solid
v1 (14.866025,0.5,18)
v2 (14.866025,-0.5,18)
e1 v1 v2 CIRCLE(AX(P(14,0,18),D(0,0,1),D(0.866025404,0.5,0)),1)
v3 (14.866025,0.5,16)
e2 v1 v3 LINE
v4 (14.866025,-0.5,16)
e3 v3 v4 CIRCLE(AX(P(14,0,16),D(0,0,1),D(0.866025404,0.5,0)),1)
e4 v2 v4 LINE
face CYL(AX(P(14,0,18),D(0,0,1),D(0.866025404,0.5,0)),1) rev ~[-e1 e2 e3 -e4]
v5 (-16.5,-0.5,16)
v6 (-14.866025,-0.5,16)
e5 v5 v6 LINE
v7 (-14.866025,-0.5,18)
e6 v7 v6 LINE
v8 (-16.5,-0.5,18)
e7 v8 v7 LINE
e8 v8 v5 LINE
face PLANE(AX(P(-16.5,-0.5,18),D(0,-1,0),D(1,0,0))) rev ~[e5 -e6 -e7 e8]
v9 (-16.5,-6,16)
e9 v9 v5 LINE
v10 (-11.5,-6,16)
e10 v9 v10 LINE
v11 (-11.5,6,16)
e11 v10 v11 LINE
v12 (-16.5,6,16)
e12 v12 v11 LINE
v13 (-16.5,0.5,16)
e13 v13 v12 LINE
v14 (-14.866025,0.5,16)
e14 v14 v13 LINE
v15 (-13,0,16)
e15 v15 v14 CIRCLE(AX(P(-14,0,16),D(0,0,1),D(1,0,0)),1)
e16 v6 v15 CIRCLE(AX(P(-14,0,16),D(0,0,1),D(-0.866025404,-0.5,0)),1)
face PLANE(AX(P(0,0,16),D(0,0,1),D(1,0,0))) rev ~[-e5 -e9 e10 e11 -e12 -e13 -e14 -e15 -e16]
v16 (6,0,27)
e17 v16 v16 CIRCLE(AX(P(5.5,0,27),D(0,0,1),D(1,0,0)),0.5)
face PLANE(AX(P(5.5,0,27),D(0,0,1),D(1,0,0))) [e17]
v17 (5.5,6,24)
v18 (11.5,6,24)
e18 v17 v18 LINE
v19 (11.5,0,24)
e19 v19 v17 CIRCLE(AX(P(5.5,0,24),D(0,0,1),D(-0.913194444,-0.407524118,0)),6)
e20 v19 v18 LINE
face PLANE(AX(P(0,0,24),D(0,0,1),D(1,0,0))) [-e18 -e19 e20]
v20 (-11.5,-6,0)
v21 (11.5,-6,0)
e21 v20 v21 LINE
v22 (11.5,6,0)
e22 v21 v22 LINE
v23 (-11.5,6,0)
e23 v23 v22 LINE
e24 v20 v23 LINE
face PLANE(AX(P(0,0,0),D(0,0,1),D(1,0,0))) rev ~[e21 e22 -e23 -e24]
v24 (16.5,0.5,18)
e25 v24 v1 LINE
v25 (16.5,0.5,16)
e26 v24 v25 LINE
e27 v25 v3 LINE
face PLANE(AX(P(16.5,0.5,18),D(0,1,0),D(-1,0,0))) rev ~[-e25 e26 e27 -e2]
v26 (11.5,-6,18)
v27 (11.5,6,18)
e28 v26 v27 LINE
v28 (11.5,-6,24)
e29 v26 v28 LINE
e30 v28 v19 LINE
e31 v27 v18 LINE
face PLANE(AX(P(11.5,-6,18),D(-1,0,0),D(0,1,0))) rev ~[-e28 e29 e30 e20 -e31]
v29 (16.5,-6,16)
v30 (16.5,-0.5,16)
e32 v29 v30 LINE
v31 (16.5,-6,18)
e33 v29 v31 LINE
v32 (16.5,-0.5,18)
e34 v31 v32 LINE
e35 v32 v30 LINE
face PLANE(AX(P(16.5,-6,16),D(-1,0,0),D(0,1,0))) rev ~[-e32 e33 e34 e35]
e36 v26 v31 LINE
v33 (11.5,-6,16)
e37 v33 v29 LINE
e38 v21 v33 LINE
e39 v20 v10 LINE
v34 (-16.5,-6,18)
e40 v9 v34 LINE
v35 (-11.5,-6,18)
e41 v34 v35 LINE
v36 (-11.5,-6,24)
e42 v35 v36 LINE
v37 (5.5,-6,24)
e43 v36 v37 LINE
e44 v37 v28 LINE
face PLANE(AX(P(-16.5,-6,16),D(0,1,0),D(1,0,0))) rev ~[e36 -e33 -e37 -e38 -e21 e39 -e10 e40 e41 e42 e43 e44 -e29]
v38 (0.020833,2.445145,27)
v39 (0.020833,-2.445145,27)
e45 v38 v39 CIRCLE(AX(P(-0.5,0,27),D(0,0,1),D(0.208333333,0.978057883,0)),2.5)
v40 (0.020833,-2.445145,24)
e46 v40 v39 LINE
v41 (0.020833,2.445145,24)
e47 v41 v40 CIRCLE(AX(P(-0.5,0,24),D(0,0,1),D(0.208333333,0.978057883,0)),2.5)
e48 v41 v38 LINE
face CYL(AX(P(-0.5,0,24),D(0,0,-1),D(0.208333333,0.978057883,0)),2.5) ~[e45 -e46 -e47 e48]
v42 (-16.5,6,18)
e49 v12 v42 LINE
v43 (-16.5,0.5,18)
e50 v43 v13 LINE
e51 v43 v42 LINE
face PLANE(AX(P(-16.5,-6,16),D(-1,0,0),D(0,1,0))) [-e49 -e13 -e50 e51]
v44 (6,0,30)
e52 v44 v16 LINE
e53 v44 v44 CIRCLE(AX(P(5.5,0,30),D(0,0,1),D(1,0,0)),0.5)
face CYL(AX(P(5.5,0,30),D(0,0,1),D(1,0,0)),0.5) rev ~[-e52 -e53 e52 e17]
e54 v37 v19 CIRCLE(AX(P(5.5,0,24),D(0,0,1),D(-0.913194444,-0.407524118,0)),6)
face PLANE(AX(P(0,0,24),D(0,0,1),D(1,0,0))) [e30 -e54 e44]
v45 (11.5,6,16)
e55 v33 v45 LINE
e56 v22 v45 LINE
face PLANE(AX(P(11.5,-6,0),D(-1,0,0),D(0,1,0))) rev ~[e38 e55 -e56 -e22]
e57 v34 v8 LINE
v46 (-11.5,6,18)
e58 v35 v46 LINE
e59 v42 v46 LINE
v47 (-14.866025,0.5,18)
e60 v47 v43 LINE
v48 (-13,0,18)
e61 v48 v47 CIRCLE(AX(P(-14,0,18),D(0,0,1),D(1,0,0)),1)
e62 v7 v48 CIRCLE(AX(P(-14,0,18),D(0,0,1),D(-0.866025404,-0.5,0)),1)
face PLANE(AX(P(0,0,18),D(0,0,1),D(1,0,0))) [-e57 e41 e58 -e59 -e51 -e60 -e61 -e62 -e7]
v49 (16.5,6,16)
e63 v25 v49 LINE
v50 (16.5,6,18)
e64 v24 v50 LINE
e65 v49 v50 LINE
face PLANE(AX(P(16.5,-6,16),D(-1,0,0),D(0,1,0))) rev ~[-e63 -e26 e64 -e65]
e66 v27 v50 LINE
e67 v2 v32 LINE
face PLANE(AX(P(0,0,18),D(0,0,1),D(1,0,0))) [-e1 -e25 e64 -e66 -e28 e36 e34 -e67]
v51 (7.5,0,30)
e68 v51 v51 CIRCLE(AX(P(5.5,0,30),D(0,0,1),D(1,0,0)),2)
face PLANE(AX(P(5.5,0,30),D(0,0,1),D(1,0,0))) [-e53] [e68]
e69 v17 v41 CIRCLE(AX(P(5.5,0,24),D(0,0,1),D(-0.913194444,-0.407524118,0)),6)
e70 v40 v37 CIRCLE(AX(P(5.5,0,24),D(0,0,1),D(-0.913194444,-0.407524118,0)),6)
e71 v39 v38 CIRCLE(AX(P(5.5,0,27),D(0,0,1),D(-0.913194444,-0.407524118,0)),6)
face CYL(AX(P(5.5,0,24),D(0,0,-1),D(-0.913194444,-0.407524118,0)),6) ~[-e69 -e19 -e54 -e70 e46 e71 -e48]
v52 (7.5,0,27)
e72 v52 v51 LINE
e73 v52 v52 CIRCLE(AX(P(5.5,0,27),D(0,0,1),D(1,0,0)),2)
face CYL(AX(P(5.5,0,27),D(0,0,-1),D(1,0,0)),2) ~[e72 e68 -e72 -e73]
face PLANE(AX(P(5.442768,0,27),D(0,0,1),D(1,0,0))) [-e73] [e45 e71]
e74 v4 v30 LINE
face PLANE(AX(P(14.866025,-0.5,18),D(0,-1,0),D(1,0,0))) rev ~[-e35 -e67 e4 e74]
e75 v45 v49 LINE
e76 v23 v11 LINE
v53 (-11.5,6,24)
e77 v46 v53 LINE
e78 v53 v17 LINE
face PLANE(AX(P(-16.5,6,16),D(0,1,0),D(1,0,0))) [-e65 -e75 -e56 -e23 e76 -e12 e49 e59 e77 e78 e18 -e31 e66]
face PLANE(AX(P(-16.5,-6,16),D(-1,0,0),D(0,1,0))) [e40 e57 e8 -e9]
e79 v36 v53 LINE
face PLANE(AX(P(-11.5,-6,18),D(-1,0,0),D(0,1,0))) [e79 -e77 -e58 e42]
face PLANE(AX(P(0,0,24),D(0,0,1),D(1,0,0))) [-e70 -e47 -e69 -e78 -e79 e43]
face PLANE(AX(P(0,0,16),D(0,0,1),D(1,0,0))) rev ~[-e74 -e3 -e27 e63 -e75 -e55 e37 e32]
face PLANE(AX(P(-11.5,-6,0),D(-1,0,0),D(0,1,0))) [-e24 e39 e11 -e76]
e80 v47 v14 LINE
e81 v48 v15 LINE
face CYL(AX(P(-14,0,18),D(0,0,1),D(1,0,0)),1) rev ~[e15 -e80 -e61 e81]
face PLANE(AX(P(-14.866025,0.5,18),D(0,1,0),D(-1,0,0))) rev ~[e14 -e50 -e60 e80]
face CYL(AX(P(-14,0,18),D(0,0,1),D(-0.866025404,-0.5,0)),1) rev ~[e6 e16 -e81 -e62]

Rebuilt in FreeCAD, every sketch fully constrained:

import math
import FreeCAD as App
import Part
import Sketcher
from FreeCAD import Vector


def add_polygon(sketch, points):
    """Adds a closed chain of lines whose ends are joined by coincident constraints."""
    first, n = sketch.GeometryCount, len(points)
    for a, b in zip(points, points[1:] + points[:1]):
        sketch.addGeometry(Part.LineSegment(App.Vector(*a, 0), App.Vector(*b, 0)), False)
    for i in range(n):
        sketch.addConstraint(Sketcher.Constraint("Coincident", first + i, 2, first + (i + 1) % n, 1))

doc = App.newDocument("Part")
body = doc.addObject("PartDesign::Body", "Body")

# Sketch on XY plane
sketch1 = body.newObject("Sketcher::SketchObject", "Sketch")
sketch1.AttachmentSupport = (doc.getObject("XY_Plane"), [""])
sketch1.MapMode = "FlatFace"
add_polygon(sketch1, [(-11.5, 6), (-11.5, -6), (11.5, -6), (11.5, 6)])  # lines 0-3
sketch1.addConstraint([
    Sketcher.Constraint("Vertical", 0),
    Sketcher.Constraint("Horizontal", 1),
    Sketcher.Constraint("Vertical", 2),
    Sketcher.Constraint("Horizontal", 3),
    Sketcher.Constraint("Symmetric", 0, 2, 2, 2, -1, 1),
    Sketcher.Constraint("DistanceX", 1, 1, 1, 2, 23.0),
    Sketcher.Constraint("DistanceY", 0, 2, 0, 1, 12.0),
])
pad1 = body.newObject("PartDesign::Pad", "Pad")
pad1.Profile = sketch1
pad1.Length = 16

# Sketch on XY plane
sketch2 = body.newObject("Sketcher::SketchObject", "Sketch001")
sketch2.AttachmentSupport = (doc.getObject("XY_Plane"), [""])
sketch2.MapMode = "FlatFace"
sketch2.AttachmentOffset = App.Placement(Vector(0, 0, 16), App.Rotation())
add_polygon(sketch2, [(-16.5, 6), (-16.5, -6), (16.5, -6), (16.5, 6)])  # lines 0-3
sketch2.addConstraint([
    Sketcher.Constraint("Vertical", 0),
    Sketcher.Constraint("Horizontal", 1),
    Sketcher.Constraint("Vertical", 2),
    Sketcher.Constraint("Horizontal", 3),
    Sketcher.Constraint("Symmetric", 0, 2, 2, 2, -1, 1),
    Sketcher.Constraint("DistanceX", 1, 1, 1, 2, 33.0),
    Sketcher.Constraint("DistanceY", 0, 2, 0, 1, 12.0),
])
pad2 = body.newObject("PartDesign::Pad", "Pad001")
pad2.Profile = sketch2
pad2.Length = 2

# Sketch on XY plane
sketch3 = body.newObject("Sketcher::SketchObject", "Sketch002")
sketch3.AttachmentSupport = (doc.getObject("XY_Plane"), [""])
sketch3.MapMode = "FlatFace"
sketch3.AttachmentOffset = App.Placement(Vector(0, 0, 18), App.Rotation())
add_polygon(sketch3, [(-11.5, 6), (-11.5, -6), (11.5, -6), (11.5, 6)])  # lines 0-3
sketch3.addConstraint([
    Sketcher.Constraint("Vertical", 0),
    Sketcher.Constraint("Horizontal", 1),
    Sketcher.Constraint("Vertical", 2),
    Sketcher.Constraint("Horizontal", 3),
    Sketcher.Constraint("Symmetric", 0, 2, 2, 2, -1, 1),
    Sketcher.Constraint("DistanceX", 1, 1, 1, 2, 23.0),
    Sketcher.Constraint("DistanceY", 0, 2, 0, 1, 12.0),
])
pad3 = body.newObject("PartDesign::Pad", "Pad002")
pad3.Profile = sketch3
pad3.Length = 6

# Sketch on XY plane
sketch4 = body.newObject("Sketcher::SketchObject", "Sketch003")
sketch4.AttachmentSupport = (doc.getObject("XY_Plane"), [""])
sketch4.MapMode = "FlatFace"
sketch4.AttachmentOffset = App.Placement(Vector(0, 0, 24), App.Rotation())
sketch4.addGeometry([
    Part.ArcOfCircle(Part.Circle(Vector(-0.5, 0, 0), Vector(0, 0, 1), 2.5), math.radians(77.975301), math.radians(282.024699)),
    Part.ArcOfCircle(Part.Circle(Vector(5.5, 0, 0), Vector(0, 0, 1), 6), math.radians(-155.950602), math.radians(155.950602)),
], False)
sketch4.addConstraint([
    Sketcher.Constraint("Coincident", 0, 1, 1, 2),
    Sketcher.Constraint("Coincident", 1, 1, 0, 2),
    Sketcher.Constraint("Symmetric", 0, 1, 1, 1, -1),
    Sketcher.Constraint("Radius", 1, 6.0),
    Sketcher.Constraint("Radius", 0, 2.5),
    Sketcher.Constraint("DistanceX", 0, 3, 1, 3, 6.0),
    Sketcher.Constraint("DistanceX", 0, 3, -1, 1, 0.5),
])
pad4 = body.newObject("PartDesign::Pad", "Pad003")
pad4.Profile = sketch4
pad4.Length = 3

# Sketch on XY plane
sketch5 = body.newObject("Sketcher::SketchObject", "Sketch004")
sketch5.AttachmentSupport = (doc.getObject("XY_Plane"), [""])
sketch5.MapMode = "FlatFace"
sketch5.AttachmentOffset = App.Placement(Vector(0, 0, 27), App.Rotation())
sketch5.addGeometry(Part.Circle(Vector(5.5, 0, 0), Vector(0, 0, 1), 2), False)
sketch5.addConstraint([
    Sketcher.Constraint("PointOnObject", 0, 3, -1),
    Sketcher.Constraint("Diameter", 0, 4.0),
    Sketcher.Constraint("DistanceX", -1, 1, 0, 3, 5.5),
])
pad5 = body.newObject("PartDesign::Pad", "Pad004")
pad5.Profile = sketch5
pad5.Length = 3

# Sketch on XY plane
sketch6 = body.newObject("Sketcher::SketchObject", "Sketch005")
sketch6.AttachmentSupport = (doc.getObject("XY_Plane"), [""])
sketch6.MapMode = "FlatFace"
sketch6.AttachmentOffset = App.Placement(Vector(0, 0, 18), App.Rotation())
sketch6.addGeometry([
    Part.ArcOfCircle(Part.Circle(Vector(-14, 0, 0), Vector(0, 0, 1), 1), math.radians(-150), math.radians(0)),  # 0
    Part.ArcOfCircle(Part.Circle(Vector(-14, 0, 0), Vector(0, 0, 1), 1), math.radians(0), math.radians(150)),  # 1
    Part.LineSegment(Vector(-14.866025, 0.5, 0), Vector(-16.5, 0.5, 0)),  # 2
    Part.LineSegment(Vector(-16.5, 0.5, 0), Vector(-16.5, -0.5, 0)),  # 3
    Part.LineSegment(Vector(-16.5, -0.5, 0), Vector(-14.866025, -0.5, 0)),  # 4
    Part.LineSegment(Vector(14.866025, -0.5, 0), Vector(16.5, -0.5, 0)),  # 5
    Part.LineSegment(Vector(16.5, -0.5, 0), Vector(16.5, 0.5, 0)),  # 6
    Part.LineSegment(Vector(16.5, 0.5, 0), Vector(14.866025, 0.5, 0)),  # 7
    Part.ArcOfCircle(Part.Circle(Vector(14, 0, 0), Vector(0, 0, 1), 1), math.radians(30), math.radians(330)),  # 8
], False)
sketch6.addConstraint([
    Sketcher.Constraint("Tangent", 0, 2, 1, 1),
    Sketcher.Constraint("Coincident", 1, 2, 2, 1),
    Sketcher.Constraint("Coincident", 2, 2, 3, 1),
    Sketcher.Constraint("Coincident", 3, 2, 4, 1),
    Sketcher.Constraint("Coincident", 4, 2, 0, 1),
    Sketcher.Constraint("Coincident", 5, 2, 6, 1),
    Sketcher.Constraint("Coincident", 6, 2, 7, 1),
    Sketcher.Constraint("Coincident", 7, 2, 8, 1),
    Sketcher.Constraint("Coincident", 8, 2, 5, 1),
    Sketcher.Constraint("Horizontal", 2),
    Sketcher.Constraint("Vertical", 3),
    Sketcher.Constraint("Horizontal", 4),
    Sketcher.Constraint("Horizontal", 5),
    Sketcher.Constraint("Vertical", 6),
    Sketcher.Constraint("Horizontal", 7),
    Sketcher.Constraint("Equal", 0, 1),
    Sketcher.Constraint("Equal", 1, 8),
    Sketcher.Constraint("Symmetric", 0, 3, 8, 3, -1, 1),
    Sketcher.Constraint("Symmetric", 2, 2, 5, 2, -1, 1),
    Sketcher.Constraint("Symmetric", 1, 2, 7, 2, -2),
    Sketcher.Constraint("PointOnObject", 0, 2, -1),
    Sketcher.Constraint("Horizontal", 4, 2, 5, 2),
    Sketcher.Constraint("Radius", 0, 1.0),
    Sketcher.Constraint("DistanceY", 3, 2, 3, 1, 1.0),
    Sketcher.Constraint("DistanceX", 0, 3, -1, 1, 14.0),
    Sketcher.Constraint("DistanceX", 2, 2, -1, 1, 16.5),
])
pocket1 = body.newObject("PartDesign::Pocket", "Pocket")
pocket1.Profile = sketch6
pocket1.Type = "ThroughAll"

# Sketch on XY plane
sketch7 = body.newObject("Sketcher::SketchObject", "Sketch006")
sketch7.AttachmentSupport = (doc.getObject("XY_Plane"), [""])
sketch7.MapMode = "FlatFace"
sketch7.AttachmentOffset = App.Placement(Vector(0, 0, 30), App.Rotation())
sketch7.addGeometry(Part.Circle(Vector(5.5, 0, 0), Vector(0, 0, 1), 0.5), False)
sketch7.addConstraint([
    Sketcher.Constraint("PointOnObject", 0, 3, -1),
    Sketcher.Constraint("Diameter", 0, 1.0),
    Sketcher.Constraint("DistanceX", -1, 1, 0, 3, 5.5),
])
pocket2 = body.newObject("PartDesign::Pocket", "Pocket001")
pocket2.Profile = sketch7
pocket2.Length = 3

doc.recompute()
